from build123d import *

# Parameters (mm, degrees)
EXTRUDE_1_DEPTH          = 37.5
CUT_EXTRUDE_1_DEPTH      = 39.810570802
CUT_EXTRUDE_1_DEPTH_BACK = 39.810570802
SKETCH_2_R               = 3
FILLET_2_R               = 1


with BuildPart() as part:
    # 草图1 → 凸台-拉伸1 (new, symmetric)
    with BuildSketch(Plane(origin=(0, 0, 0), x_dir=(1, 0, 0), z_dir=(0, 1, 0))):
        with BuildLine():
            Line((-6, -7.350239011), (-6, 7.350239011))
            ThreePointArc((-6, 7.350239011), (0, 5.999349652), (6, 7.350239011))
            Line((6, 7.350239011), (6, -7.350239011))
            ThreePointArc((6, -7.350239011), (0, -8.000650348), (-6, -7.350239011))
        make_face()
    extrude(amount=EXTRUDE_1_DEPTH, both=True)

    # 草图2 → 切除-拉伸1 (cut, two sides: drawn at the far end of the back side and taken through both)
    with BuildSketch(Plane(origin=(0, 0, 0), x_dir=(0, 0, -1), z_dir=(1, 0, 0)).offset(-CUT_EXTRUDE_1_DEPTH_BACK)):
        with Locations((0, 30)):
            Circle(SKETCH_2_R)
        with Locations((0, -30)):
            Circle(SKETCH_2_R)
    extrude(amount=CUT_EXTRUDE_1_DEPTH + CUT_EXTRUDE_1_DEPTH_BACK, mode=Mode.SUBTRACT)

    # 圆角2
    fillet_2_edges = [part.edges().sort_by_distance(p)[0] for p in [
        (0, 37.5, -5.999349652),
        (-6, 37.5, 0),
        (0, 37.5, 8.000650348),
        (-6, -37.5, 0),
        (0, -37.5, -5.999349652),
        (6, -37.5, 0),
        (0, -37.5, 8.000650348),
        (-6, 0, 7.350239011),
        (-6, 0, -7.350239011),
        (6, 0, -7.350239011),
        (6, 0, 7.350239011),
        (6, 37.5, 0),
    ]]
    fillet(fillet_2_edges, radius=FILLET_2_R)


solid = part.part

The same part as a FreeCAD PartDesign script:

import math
import FreeCAD as App
import Part
import Sketcher

V = App.Vector


def edges_at(feature, points):
    """Names of the edges that pass closest to the given points."""
    edges = feature.Shape.Edges
    near = lambda p: min(range(len(edges)), key=lambda i: edges[i].distToShape(Part.Vertex(*p))[0])
    return sorted({f"Edge{near(p) + 1}" for p in points})

doc = App.newDocument("Part")
body = doc.addObject("PartDesign::Body", "Body")

sketch1 = body.newObject("Sketcher::SketchObject", "Sketch")
sketch1.AttachmentSupport = (doc.getObject("XZ_Plane"), [""])
sketch1.MapMode = "FlatFace"
sketch1.addGeometry(Part.LineSegment(V(-6, -7.350239, 0), V(-6, 7.350239, 0)), False)
sketch1.addGeometry(Part.ArcOfCircle(Part.Circle(V(0, -19.99935, 0), V(0, 0, 1), 28), math.radians(77.626375), math.radians(102.373625)), False)
sketch1.addGeometry(Part.LineSegment(V(6, 7.350239, 0), V(6, -7.350239, 0)), False)
sketch1.addGeometry(Part.ArcOfCircle(Part.Circle(V(0, -19.99935, 0), V(0, 0, 1), 14), math.radians(64.623066), math.radians(115.376934)), False)
sketch1.addConstraint(Sketcher.Constraint("Coincident", 0, 2, 1, 2))
sketch1.addConstraint(Sketcher.Constraint("Coincident", 1, 1, 2, 1))
sketch1.addConstraint(Sketcher.Constraint("Coincident", 2, 2, 3, 1))
sketch1.addConstraint(Sketcher.Constraint("Coincident", 3, 2, 0, 1))
sketch1.addConstraint(Sketcher.Constraint("Vertical", 0))
sketch1.addConstraint(Sketcher.Constraint("Vertical", 2))
sketch1.addConstraint(Sketcher.Constraint("Coincident", 3, 3, 1, 3))
sketch1.addConstraint(Sketcher.Constraint("Symmetric", 0, 2, 2, 2, -1, 1))
sketch1.addConstraint(Sketcher.Constraint("PointOnObject", 1, 3, -2))
sketch1.addConstraint(Sketcher.Constraint("Radius", 1, 28.0))
sketch1.addConstraint(Sketcher.Constraint("Radius", 3, 14.0))
sketch1.addConstraint(Sketcher.Constraint("DistanceX", 0, 2, -1, 1, 6.0))
pad1 = body.newObject("PartDesign::Pad", "Pad")
pad1.Profile = sketch1
pad1.Length = 75
pad1.Midplane = True

sketch2 = body.newObject("Sketcher::SketchObject", "Sketch001")
sketch2.AttachmentSupport = (doc.getObject("YZ_Plane"), [""])
sketch2.MapMode = "FlatFace"
sketch2.addGeometry(Part.Circle(V(30, 0, 0), V(0, 0, 1), 3), False)
sketch2.addGeometry(Part.Circle(V(-30, 0, 0), V(0, 0, 1), 3), False)
sketch2.addConstraint(Sketcher.Constraint("Equal", 0, 1))
sketch2.addConstraint(Sketcher.Constraint("Symmetric", 0, 3, 1, 3, -1, 1))
sketch2.addConstraint(Sketcher.Constraint("PointOnObject", 0, 3, -1))
sketch2.addConstraint(Sketcher.Constraint("Diameter", 0, 6.0))
sketch2.addConstraint(Sketcher.Constraint("DistanceX", -1, 1, 0, 3, 30.0))
pocket1 = body.newObject("PartDesign::Pocket", "Pocket")
pocket1.Profile = sketch2
pocket1.Type = "ThroughAll"
pocket1.Midplane = True
doc.recompute()

fillet = body.newObject("PartDesign::Fillet", "Fillet")
fillet.Base = (pocket1, edges_at(pocket1, [
    (0, 37.5, -5.999),
    (-6, 37.5, 0),
    (0, 37.5, 8.001),
    (-6, -37.5, 0),
    (0, -37.5, -5.999),
    (6, -37.5, 0),
    (0, -37.5, 8.001),
    (-6, 0, 7.35),
    (-6, 0, -7.35),
    (6, 0, -7.35),
    (6, 0, 7.35),
    (6, 37.5, 0),
]))
fillet.Radius = 1

doc.recompute()
